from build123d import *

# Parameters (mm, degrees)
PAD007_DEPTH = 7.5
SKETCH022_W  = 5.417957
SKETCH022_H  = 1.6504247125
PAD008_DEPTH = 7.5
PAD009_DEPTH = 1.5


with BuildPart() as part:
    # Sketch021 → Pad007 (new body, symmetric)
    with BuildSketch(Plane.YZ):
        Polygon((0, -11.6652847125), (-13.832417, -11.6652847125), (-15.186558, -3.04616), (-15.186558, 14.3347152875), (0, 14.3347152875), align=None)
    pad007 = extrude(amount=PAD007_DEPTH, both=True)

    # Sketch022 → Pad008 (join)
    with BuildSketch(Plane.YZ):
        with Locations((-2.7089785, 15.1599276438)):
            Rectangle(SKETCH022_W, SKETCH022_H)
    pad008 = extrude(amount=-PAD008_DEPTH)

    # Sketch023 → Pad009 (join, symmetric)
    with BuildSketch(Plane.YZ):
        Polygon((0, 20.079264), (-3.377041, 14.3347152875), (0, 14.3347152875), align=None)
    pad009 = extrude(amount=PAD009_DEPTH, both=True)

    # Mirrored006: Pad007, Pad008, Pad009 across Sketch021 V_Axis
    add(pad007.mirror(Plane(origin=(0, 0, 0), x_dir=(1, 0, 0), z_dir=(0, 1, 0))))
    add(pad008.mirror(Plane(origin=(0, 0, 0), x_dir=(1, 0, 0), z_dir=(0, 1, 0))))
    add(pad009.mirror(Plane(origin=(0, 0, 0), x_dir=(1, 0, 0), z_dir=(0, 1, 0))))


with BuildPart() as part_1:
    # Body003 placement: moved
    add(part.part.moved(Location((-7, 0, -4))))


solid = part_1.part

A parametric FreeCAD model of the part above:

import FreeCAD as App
import Part
import Sketcher
Q = App.Units.Quantity

doc = App.newDocument("Part")
body = doc.addObject("PartDesign::Body", "Body")

# Sketch on YZ plane
sketch1 = doc.addObject("Sketcher::SketchObject", "Sketch")
body.addObject(sketch1)
sketch1.AttachmentSupport = (doc.YZ_Plane, [""])
sketch1.MapMode = "FlatFace"
sketch1.addGeometry([
    Part.LineSegment(App.Vector(-13.832417, -11.665285, 0), App.Vector(0, -11.665285, 0)),  # 0
    Part.LineSegment(App.Vector(0, -11.665285, 0), App.Vector(0, 14.334715, 0)),  # 1
    Part.LineSegment(App.Vector(0, 14.334715, 0), App.Vector(-15.186558, 14.334715, 0)),  # 2
    Part.LineSegment(App.Vector(-15.186558, 14.334715, 0), App.Vector(-15.186558, -3.04616, 0)),  # 3
    Part.LineSegment(App.Vector(-15.186558, -3.04616, 0), App.Vector(-13.832417, -11.665285, 0)),  # 4
], False)
sketch1.addConstraint([
    Sketcher.Constraint("Coincident", 0, 2, 1, 1),
    Sketcher.Constraint("Coincident", 1, 2, 2, 1),
    Sketcher.Constraint("Coincident", 2, 2, 3, 1),
    Sketcher.Constraint("Coincident", 3, 2, 4, 1),
    Sketcher.Constraint("Coincident", 4, 2, 0, 1),
    Sketcher.Constraint("Horizontal", 0),
    Sketcher.Constraint("Vertical", 1),
    Sketcher.Constraint("Horizontal", 2),
    Sketcher.Constraint("Vertical", 3),
    Sketcher.Constraint("PointOnObject", 0, 2, -2),
    Sketcher.Constraint("DistanceY", 1, 1, 1, 2, Q("26 mm")),
    Sketcher.Constraint("Distance", 4, Q("8.72485 mm")),
    Sketcher.Constraint("DistanceX", 0, 1, 0, 2, Q("13.832417 mm")),
    Sketcher.Constraint("DistanceX", 2, 2, 2, 1, Q("15.186558 mm")),
    Sketcher.Constraint("DistanceY", 3, 2, -1, 1, Q("3.04616 mm")),
])
pad1 = doc.addObject("PartDesign::Pad", "Pad")
body.addObject(pad1)
pad1.Profile = sketch1
pad1.Length = 15
pad1.Midplane = True

# Sketch on YZ plane
sketch2 = doc.addObject("Sketcher::SketchObject", "Sketch001")
body.addObject(sketch2)
sketch2.AttachmentSupport = (doc.YZ_Plane, [""])
sketch2.MapMode = "FlatFace"
sketch2.addGeometry([
    Part.LineSegment(App.Vector(-5.417957, 15.98514, 0), App.Vector(-5.417957, 14.334715, 0)),
    Part.LineSegment(App.Vector(-5.417957, 14.334715, 0), App.Vector(0, 14.334715, 0)),
    Part.LineSegment(App.Vector(0, 14.334715, 0), App.Vector(0, 15.98514, 0)),
    Part.LineSegment(App.Vector(0, 15.98514, 0), App.Vector(-5.417957, 15.98514, 0)),
], False)
sketch2.addConstraint([
    Sketcher.Constraint("Coincident", 0, 2, 1, 1),
    Sketcher.Constraint("Coincident", 1, 2, 2, 1),
    Sketcher.Constraint("Coincident", 2, 2, 3, 1),
    Sketcher.Constraint("Coincident", 3, 2, 0, 1),
    Sketcher.Constraint("Vertical", 0),
    Sketcher.Constraint("Horizontal", 1),
    Sketcher.Constraint("Vertical", 2),
    Sketcher.Constraint("Horizontal", 3),
    Sketcher.Constraint("PointOnObject", 1, 2, -2),
    Sketcher.Constraint("DistanceX", 1, 1, 1, 2, Q("5.417957 mm")),
    Sketcher.Constraint("DistanceY", 0, 2, 0, 1, Q("1.650425 mm")),
    Sketcher.Constraint("DistanceY", -1, 1, 2, 2, Q("15.98514 mm")),
])
pad2 = doc.addObject("PartDesign::Pad", "Pad001")
body.addObject(pad2)
pad2.Profile = sketch2
pad2.Length = 7.5
pad2.Reversed = True

# Sketch on YZ plane
sketch3 = doc.addObject("Sketcher::SketchObject", "Sketch002")
body.addObject(sketch3)
sketch3.AttachmentSupport = (doc.YZ_Plane, [""])
sketch3.MapMode = "FlatFace"
sketch3.addGeometry([
    Part.LineSegment(App.Vector(0, 20.079264, 0), App.Vector(-3.377041, 14.334715, 0)),
    Part.LineSegment(App.Vector(-3.377041, 14.334715, 0), App.Vector(0, 14.334715, 0)),
    Part.LineSegment(App.Vector(0, 14.334715, 0), App.Vector(0, 20.079264, 0)),
], False)
sketch3.addConstraint([
    Sketcher.Constraint("Coincident", 0, 2, 1, 1),
    Sketcher.Constraint("Coincident", 1, 2, 2, 1),
    Sketcher.Constraint("Coincident", 2, 2, 0, 1),
    Sketcher.Constraint("Horizontal", 1),
    Sketcher.Constraint("Vertical", 2),
    Sketcher.Constraint("PointOnObject", 1, 2, -2),
    Sketcher.Constraint("DistanceX", 1, 1, 1, 2, Q("3.377041 mm")),
    Sketcher.Constraint("DistanceY", 2, 1, 2, 2, Q("5.744549 mm")),
    Sketcher.Constraint("DistanceY", -1, 1, 0, 2, Q("14.334715 mm")),
])
pad3 = doc.addObject("PartDesign::Pad", "Pad002")
body.addObject(pad3)
pad3.Profile = sketch3
pad3.Length = 3
pad3.Midplane = True
doc.recompute()

mirrored = doc.addObject("PartDesign::Mirrored", "Mirrored")
body.addObject(mirrored)
mirrored.Originals = [pad1, pad2, pad3]
mirrored.MirrorPlane = (doc.XZ_Plane, [""])
body.Tip = mirrored
body2 = doc.addObject("PartDesign::Body", "Body001")
doc.recompute()

body.Placement = App.Placement(App.Vector(-7, 0, -4), App.Rotation(App.Vector(0, 0, 1), 0))
boolean = doc.addObject("PartDesign::Boolean", "Boolean")
body2.addObject(boolean)
boolean.Type = "Fuse"
boolean.addObjects([body])

doc.recompute()
